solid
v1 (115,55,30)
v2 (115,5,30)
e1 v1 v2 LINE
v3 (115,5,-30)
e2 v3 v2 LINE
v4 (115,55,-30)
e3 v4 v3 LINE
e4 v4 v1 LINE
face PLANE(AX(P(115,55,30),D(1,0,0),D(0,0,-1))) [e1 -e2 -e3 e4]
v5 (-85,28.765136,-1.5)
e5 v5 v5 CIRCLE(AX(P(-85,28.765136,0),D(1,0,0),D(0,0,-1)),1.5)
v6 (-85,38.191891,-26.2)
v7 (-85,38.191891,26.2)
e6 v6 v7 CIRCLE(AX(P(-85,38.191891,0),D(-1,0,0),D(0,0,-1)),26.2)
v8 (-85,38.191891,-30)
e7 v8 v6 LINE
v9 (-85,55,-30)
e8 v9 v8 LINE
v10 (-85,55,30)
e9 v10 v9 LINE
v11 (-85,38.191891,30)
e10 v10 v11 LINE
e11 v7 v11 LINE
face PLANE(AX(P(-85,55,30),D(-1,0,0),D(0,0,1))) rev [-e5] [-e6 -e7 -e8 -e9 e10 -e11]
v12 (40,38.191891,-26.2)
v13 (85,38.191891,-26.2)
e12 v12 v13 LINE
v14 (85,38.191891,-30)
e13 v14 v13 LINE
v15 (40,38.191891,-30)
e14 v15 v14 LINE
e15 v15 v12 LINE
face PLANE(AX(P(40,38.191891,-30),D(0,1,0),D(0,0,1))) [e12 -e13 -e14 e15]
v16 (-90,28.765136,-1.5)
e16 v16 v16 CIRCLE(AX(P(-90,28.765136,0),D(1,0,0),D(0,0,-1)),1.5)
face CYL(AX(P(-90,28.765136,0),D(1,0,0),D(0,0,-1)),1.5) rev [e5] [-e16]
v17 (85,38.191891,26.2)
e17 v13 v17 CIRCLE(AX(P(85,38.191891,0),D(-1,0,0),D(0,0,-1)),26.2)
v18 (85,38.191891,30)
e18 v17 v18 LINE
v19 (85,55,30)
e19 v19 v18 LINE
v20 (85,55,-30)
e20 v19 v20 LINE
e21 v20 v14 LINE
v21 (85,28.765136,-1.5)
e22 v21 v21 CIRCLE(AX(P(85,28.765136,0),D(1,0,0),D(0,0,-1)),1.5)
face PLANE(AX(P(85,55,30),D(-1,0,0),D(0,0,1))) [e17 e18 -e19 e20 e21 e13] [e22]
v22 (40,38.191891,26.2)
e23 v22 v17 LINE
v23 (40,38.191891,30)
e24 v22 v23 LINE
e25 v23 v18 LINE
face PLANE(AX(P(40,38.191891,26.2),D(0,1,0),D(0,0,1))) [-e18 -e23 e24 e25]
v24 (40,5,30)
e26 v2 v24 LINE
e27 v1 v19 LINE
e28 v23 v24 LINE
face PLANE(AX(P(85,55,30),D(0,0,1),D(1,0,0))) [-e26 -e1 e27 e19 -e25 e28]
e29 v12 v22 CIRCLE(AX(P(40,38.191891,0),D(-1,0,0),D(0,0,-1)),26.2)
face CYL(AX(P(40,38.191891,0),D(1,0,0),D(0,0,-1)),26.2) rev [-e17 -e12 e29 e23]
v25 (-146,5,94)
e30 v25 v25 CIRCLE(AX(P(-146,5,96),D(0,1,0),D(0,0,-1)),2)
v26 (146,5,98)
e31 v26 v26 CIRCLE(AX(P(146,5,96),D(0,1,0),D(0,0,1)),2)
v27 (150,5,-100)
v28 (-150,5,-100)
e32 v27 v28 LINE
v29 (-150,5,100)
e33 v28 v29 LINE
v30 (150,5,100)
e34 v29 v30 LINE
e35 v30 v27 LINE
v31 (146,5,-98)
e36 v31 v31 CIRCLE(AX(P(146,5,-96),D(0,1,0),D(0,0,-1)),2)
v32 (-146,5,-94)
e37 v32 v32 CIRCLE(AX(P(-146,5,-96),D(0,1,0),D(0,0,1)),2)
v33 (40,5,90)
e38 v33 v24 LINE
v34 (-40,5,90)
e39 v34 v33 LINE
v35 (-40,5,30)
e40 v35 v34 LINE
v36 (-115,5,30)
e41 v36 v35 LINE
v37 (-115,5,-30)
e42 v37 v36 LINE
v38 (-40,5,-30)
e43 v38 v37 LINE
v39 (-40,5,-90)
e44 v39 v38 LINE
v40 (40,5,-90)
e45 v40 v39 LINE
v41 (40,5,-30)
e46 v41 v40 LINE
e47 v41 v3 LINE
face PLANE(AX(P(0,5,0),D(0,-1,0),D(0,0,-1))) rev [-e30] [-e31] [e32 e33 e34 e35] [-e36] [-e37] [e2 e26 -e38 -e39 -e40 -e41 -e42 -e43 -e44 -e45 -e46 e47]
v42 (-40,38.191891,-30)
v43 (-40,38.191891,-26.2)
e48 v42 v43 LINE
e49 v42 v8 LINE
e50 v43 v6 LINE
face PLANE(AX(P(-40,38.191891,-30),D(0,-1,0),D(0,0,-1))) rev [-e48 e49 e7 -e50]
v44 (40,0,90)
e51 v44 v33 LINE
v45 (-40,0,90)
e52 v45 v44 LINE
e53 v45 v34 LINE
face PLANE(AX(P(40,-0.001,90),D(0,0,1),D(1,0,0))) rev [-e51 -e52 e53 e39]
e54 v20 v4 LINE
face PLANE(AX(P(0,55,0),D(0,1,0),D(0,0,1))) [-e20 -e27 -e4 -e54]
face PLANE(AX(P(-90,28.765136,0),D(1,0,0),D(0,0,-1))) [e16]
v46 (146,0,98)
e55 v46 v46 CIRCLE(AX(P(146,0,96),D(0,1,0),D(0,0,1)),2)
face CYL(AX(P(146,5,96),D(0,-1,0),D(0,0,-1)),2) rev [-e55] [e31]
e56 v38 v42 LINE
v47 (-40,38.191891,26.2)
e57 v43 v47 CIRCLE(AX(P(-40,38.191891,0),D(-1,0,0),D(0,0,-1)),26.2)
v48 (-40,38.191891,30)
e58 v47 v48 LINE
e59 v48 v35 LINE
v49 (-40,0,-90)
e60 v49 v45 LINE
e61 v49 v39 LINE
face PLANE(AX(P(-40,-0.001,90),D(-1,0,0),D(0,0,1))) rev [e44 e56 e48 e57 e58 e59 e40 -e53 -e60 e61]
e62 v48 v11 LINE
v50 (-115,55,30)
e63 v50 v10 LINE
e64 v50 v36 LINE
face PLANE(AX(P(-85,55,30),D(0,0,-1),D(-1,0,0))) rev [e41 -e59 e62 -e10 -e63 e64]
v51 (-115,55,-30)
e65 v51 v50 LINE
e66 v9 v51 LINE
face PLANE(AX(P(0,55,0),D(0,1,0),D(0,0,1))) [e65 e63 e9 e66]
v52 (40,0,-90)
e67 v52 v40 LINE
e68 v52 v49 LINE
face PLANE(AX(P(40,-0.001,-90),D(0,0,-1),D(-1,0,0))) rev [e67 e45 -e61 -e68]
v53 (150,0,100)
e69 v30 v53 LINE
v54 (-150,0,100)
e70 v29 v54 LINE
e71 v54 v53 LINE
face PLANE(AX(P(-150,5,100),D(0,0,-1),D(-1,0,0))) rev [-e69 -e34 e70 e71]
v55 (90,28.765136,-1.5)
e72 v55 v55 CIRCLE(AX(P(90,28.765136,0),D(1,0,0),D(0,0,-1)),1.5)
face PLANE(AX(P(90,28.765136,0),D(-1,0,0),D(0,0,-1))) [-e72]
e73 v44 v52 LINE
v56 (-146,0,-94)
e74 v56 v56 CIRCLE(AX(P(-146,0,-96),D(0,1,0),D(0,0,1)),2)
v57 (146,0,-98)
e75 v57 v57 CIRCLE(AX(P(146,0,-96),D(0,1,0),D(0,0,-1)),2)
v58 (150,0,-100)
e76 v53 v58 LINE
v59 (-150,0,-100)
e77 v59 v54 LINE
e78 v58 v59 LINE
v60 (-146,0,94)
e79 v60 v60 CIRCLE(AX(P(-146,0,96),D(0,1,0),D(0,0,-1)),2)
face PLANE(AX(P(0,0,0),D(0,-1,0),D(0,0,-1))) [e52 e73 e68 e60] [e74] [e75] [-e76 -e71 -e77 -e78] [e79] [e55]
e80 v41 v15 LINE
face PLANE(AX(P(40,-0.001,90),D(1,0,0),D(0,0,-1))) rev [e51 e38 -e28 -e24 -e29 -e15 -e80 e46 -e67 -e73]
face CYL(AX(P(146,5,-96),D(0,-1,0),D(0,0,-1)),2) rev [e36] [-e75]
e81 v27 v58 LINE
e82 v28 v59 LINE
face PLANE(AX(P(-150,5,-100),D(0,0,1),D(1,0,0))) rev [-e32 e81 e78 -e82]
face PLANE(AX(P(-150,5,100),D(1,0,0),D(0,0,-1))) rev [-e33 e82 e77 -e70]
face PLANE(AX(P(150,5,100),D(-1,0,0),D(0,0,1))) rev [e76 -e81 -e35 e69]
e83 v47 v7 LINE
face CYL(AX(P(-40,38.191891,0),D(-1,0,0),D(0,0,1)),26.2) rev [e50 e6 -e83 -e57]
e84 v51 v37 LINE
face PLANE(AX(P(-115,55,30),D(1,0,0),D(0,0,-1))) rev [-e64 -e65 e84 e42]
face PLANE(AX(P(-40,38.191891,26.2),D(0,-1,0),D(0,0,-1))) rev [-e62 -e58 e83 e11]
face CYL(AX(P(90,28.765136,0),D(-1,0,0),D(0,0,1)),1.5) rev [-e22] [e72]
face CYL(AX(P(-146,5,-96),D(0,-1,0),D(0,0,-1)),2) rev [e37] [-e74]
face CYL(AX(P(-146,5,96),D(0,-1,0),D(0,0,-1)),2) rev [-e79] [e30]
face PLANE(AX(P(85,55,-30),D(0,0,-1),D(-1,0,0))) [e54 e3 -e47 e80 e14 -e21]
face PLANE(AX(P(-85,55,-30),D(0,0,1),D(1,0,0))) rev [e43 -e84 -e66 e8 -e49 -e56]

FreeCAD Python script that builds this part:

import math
import FreeCAD as App
import Part
import Sketcher

V = App.Vector
Q = App.Units.Quantity


def add_polygon(sketch, points):
    """Adds a closed chain of lines whose ends are joined by coincident constraints."""
    first, n = sketch.GeometryCount, len(points)
    for a, b in zip(points, points[1:] + points[:1]):
        sketch.addGeometry(Part.LineSegment(App.Vector(*a, 0), App.Vector(*b, 0)), False)
    for i in range(n):
        sketch.addConstraint(Sketcher.Constraint("Coincident", first + i, 2, first + (i + 1) % n, 1))

doc = App.newDocument("Part")
body = doc.addObject("PartDesign::Body", "Body")

sketch1 = body.newObject("Sketcher::SketchObject", "Sketch")
sketch1.AttachmentSupport = (doc.getObject("XZ_Plane"), [""])
sketch1.MapMode = "FlatFace"
add_polygon(sketch1, [(-150, -100), (-150, 100), (150, 100), (150, -100)])
sketch1.addGeometry(Part.Circle(V(-146, 96, 0), V(0, 0, 1), 2), False)
sketch1.addGeometry(Part.Circle(V(146, 96, 0), V(0, 0, 1), 2), False)
sketch1.addGeometry(Part.Circle(V(-146, -96, 0), V(0, 0, 1), 2), False)
sketch1.addGeometry(Part.Circle(V(146, -96, 0), V(0, 0, 1), 2), False)
sketch1.addConstraint([
    Sketcher.Constraint("Vertical", 0),
    Sketcher.Constraint("Horizontal", 1),
    Sketcher.Constraint("Vertical", 2),
    Sketcher.Constraint("Horizontal", 3),
    Sketcher.Constraint("Equal", 4, 5),
    Sketcher.Constraint("Equal", 5, 6),
    Sketcher.Constraint("Equal", 6, 7),
    Sketcher.Constraint("Symmetric", 5, 3, 6, 3, -1, 1),
    Sketcher.Constraint("Symmetric", 4, 3, 7, 3, -1, 1),
    Sketcher.Constraint("Symmetric", 0, 2, 2, 2, -1, 1),
    Sketcher.Constraint("Symmetric", 4, 3, 5, 3, -2),
    Sketcher.Constraint("Diameter", 4, Q("4 mm")),
    Sketcher.Constraint("DistanceX", 1, 1, 1, 2, Q("300 mm")),
    Sketcher.Constraint("DistanceY", 0, 1, 0, 2, Q("200 mm")),
    Sketcher.Constraint("DistanceX", 4, 3, -1, 1, Q("146 mm")),
    Sketcher.Constraint("DistanceY", -1, 1, 4, 3, Q("96 mm")),
])
pad1 = body.newObject("PartDesign::Pad", "Pad")
pad1.Profile = sketch1
pad1.Length = 5
pad1.Reversed = True

sketch2 = body.newObject("Sketcher::SketchObject", "Sketch001")
sketch2.AttachmentSupport = (doc.getObject("XZ_Plane"), [""])
sketch2.MapMode = "FlatFace"
sketch2.AttachmentOffset = App.Placement(V(0, 0, -5), App.Rotation())
add_polygon(sketch2, [(-40, -90), (-40, 90), (40, 90), (40, -90)])
sketch2.addConstraint([
    Sketcher.Constraint("Vertical", 0),
    Sketcher.Constraint("Horizontal", 1),
    Sketcher.Constraint("Vertical", 2),
    Sketcher.Constraint("Horizontal", 3),
    Sketcher.Constraint("Symmetric", 0, 2, 2, 2, -1, 1),
    Sketcher.Constraint("DistanceX", 1, 1, 1, 2, Q("80 mm")),
    Sketcher.Constraint("DistanceY", 0, 1, 0, 2, Q("180 mm")),
])
pocket1 = body.newObject("PartDesign::Pocket", "Pocket")
pocket1.Profile = sketch2
pocket1.Type = "UpToFirst"
pocket1.Reversed = True

sketch3 = body.newObject("Sketcher::SketchObject", "Sketch002")
sketch3.AttachmentSupport = (doc.getObject("XZ_Plane"), [""])
sketch3.MapMode = "FlatFace"
sketch3.AttachmentOffset = App.Placement(V(0, 0, -5), App.Rotation())
add_polygon(sketch3, [(-115, -30), (-115, 30), (-85, 30), (-85, -30)])
sketch3.addConstraint([
    Sketcher.Constraint("Vertical", 0),
    Sketcher.Constraint("Horizontal", 1),
    Sketcher.Constraint("Vertical", 2),
    Sketcher.Constraint("Horizontal", 3),
    Sketcher.Constraint("DistanceX", 1, 1, 1, 2, Q("30 mm")),
    Sketcher.Constraint("DistanceY", 0, 1, 0, 2, Q("60 mm")),
    Sketcher.Constraint("DistanceX", 0, 2, -1, 1, Q("115 mm")),
    Sketcher.Constraint("DistanceY", -1, 1, 0, 2, Q("30 mm")),
])
pad2 = body.newObject("PartDesign::Pad", "Pad001")
pad2.Profile = sketch3
pad2.Length = 50
pad2.Reversed = True

sketch4 = body.newObject("Sketcher::SketchObject", "Sketch003")
sketch4.AttachmentSupport = (doc.getObject("YZ_Plane"), [""])
sketch4.MapMode = "FlatFace"
sketch4.AttachmentOffset = App.Placement(V(0, 0, -85), App.Rotation())
sketch4.addGeometry([
    Part.LineSegment(V(38.2, 26.2, 0), V(38.2, 30, 0)),
    Part.LineSegment(V(38.2, 30, 0), V(5, 30, 0)),
    Part.LineSegment(V(5, 30, 0), V(5, -30, 0)),
    Part.LineSegment(V(5, -30, 0), V(38.2, -30, 0)),
    Part.LineSegment(V(38.2, -30, 0), V(38.2, -26.2, 0)),
    Part.ArcOfCircle(Part.Circle(V(38.2, 0, 0), V(0, 0, 1), 26.2), math.radians(90), math.radians(270)),
], False)
sketch4.addConstraint([
    Sketcher.Constraint("Coincident", 0, 2, 1, 1),
    Sketcher.Constraint("Coincident", 1, 2, 2, 1),
    Sketcher.Constraint("Coincident", 2, 2, 3, 1),
    Sketcher.Constraint("Coincident", 3, 2, 4, 1),
    Sketcher.Constraint("Coincident", 4, 2, 5, 2),
    Sketcher.Constraint("Coincident", 5, 1, 0, 1),
    Sketcher.Constraint("Vertical", 0),
    Sketcher.Constraint("Horizontal", 1),
    Sketcher.Constraint("Vertical", 2),
    Sketcher.Constraint("Horizontal", 3),
    Sketcher.Constraint("Vertical", 4),
    Sketcher.Constraint("Symmetric", 0, 2, 3, 2, -1),
    Sketcher.Constraint("PointOnObject", 5, 3, -1),
    Sketcher.Constraint("Vertical", 5, 3, 0, 2),
    Sketcher.Constraint("Radius", 5, Q("26.2 mm")),
    Sketcher.Constraint("DistanceY", 2, 2, 2, 1, Q("60 mm")),
    Sketcher.Constraint("DistanceX", -1, 1, 1, 2, Q("5 mm")),
    Sketcher.Constraint("DistanceX", 1, 2, 1, 1, Q("33.191891 mm")),
])
pad3 = body.newObject("PartDesign::Pad", "Pad002")
pad3.Profile = sketch4
pad3.Length = 45

sketch5 = body.newObject("Sketcher::SketchObject", "Sketch004")
sketch5.AttachmentSupport = (doc.getObject("YZ_Plane"), [""])
sketch5.MapMode = "FlatFace"
sketch5.AttachmentOffset = App.Placement(V(0, 0, -85), App.Rotation())
sketch5.addGeometry(Part.Circle(V(28.8, 0, 0), V(0, 0, 1), 1.5), False)
sketch5.addConstraint([
    Sketcher.Constraint("PointOnObject", 0, 3, -1),
    Sketcher.Constraint("Diameter", 0, Q("3 mm")),
    Sketcher.Constraint("DistanceX", -1, 1, 0, 3, Q("28.765136 mm")),
])
pocket2 = body.newObject("PartDesign::Pocket", "Pocket001")
pocket2.Profile = sketch5
pocket2.Length = 5
doc.recompute()

mirrored = body.newObject("PartDesign::Mirrored", "Mirrored")
mirrored.Originals = [pad2, pad3, pocket2]
mirrored.MirrorPlane = (doc.getObject("YZ_Plane"), [""])
body.Tip = mirrored

doc.recompute()
